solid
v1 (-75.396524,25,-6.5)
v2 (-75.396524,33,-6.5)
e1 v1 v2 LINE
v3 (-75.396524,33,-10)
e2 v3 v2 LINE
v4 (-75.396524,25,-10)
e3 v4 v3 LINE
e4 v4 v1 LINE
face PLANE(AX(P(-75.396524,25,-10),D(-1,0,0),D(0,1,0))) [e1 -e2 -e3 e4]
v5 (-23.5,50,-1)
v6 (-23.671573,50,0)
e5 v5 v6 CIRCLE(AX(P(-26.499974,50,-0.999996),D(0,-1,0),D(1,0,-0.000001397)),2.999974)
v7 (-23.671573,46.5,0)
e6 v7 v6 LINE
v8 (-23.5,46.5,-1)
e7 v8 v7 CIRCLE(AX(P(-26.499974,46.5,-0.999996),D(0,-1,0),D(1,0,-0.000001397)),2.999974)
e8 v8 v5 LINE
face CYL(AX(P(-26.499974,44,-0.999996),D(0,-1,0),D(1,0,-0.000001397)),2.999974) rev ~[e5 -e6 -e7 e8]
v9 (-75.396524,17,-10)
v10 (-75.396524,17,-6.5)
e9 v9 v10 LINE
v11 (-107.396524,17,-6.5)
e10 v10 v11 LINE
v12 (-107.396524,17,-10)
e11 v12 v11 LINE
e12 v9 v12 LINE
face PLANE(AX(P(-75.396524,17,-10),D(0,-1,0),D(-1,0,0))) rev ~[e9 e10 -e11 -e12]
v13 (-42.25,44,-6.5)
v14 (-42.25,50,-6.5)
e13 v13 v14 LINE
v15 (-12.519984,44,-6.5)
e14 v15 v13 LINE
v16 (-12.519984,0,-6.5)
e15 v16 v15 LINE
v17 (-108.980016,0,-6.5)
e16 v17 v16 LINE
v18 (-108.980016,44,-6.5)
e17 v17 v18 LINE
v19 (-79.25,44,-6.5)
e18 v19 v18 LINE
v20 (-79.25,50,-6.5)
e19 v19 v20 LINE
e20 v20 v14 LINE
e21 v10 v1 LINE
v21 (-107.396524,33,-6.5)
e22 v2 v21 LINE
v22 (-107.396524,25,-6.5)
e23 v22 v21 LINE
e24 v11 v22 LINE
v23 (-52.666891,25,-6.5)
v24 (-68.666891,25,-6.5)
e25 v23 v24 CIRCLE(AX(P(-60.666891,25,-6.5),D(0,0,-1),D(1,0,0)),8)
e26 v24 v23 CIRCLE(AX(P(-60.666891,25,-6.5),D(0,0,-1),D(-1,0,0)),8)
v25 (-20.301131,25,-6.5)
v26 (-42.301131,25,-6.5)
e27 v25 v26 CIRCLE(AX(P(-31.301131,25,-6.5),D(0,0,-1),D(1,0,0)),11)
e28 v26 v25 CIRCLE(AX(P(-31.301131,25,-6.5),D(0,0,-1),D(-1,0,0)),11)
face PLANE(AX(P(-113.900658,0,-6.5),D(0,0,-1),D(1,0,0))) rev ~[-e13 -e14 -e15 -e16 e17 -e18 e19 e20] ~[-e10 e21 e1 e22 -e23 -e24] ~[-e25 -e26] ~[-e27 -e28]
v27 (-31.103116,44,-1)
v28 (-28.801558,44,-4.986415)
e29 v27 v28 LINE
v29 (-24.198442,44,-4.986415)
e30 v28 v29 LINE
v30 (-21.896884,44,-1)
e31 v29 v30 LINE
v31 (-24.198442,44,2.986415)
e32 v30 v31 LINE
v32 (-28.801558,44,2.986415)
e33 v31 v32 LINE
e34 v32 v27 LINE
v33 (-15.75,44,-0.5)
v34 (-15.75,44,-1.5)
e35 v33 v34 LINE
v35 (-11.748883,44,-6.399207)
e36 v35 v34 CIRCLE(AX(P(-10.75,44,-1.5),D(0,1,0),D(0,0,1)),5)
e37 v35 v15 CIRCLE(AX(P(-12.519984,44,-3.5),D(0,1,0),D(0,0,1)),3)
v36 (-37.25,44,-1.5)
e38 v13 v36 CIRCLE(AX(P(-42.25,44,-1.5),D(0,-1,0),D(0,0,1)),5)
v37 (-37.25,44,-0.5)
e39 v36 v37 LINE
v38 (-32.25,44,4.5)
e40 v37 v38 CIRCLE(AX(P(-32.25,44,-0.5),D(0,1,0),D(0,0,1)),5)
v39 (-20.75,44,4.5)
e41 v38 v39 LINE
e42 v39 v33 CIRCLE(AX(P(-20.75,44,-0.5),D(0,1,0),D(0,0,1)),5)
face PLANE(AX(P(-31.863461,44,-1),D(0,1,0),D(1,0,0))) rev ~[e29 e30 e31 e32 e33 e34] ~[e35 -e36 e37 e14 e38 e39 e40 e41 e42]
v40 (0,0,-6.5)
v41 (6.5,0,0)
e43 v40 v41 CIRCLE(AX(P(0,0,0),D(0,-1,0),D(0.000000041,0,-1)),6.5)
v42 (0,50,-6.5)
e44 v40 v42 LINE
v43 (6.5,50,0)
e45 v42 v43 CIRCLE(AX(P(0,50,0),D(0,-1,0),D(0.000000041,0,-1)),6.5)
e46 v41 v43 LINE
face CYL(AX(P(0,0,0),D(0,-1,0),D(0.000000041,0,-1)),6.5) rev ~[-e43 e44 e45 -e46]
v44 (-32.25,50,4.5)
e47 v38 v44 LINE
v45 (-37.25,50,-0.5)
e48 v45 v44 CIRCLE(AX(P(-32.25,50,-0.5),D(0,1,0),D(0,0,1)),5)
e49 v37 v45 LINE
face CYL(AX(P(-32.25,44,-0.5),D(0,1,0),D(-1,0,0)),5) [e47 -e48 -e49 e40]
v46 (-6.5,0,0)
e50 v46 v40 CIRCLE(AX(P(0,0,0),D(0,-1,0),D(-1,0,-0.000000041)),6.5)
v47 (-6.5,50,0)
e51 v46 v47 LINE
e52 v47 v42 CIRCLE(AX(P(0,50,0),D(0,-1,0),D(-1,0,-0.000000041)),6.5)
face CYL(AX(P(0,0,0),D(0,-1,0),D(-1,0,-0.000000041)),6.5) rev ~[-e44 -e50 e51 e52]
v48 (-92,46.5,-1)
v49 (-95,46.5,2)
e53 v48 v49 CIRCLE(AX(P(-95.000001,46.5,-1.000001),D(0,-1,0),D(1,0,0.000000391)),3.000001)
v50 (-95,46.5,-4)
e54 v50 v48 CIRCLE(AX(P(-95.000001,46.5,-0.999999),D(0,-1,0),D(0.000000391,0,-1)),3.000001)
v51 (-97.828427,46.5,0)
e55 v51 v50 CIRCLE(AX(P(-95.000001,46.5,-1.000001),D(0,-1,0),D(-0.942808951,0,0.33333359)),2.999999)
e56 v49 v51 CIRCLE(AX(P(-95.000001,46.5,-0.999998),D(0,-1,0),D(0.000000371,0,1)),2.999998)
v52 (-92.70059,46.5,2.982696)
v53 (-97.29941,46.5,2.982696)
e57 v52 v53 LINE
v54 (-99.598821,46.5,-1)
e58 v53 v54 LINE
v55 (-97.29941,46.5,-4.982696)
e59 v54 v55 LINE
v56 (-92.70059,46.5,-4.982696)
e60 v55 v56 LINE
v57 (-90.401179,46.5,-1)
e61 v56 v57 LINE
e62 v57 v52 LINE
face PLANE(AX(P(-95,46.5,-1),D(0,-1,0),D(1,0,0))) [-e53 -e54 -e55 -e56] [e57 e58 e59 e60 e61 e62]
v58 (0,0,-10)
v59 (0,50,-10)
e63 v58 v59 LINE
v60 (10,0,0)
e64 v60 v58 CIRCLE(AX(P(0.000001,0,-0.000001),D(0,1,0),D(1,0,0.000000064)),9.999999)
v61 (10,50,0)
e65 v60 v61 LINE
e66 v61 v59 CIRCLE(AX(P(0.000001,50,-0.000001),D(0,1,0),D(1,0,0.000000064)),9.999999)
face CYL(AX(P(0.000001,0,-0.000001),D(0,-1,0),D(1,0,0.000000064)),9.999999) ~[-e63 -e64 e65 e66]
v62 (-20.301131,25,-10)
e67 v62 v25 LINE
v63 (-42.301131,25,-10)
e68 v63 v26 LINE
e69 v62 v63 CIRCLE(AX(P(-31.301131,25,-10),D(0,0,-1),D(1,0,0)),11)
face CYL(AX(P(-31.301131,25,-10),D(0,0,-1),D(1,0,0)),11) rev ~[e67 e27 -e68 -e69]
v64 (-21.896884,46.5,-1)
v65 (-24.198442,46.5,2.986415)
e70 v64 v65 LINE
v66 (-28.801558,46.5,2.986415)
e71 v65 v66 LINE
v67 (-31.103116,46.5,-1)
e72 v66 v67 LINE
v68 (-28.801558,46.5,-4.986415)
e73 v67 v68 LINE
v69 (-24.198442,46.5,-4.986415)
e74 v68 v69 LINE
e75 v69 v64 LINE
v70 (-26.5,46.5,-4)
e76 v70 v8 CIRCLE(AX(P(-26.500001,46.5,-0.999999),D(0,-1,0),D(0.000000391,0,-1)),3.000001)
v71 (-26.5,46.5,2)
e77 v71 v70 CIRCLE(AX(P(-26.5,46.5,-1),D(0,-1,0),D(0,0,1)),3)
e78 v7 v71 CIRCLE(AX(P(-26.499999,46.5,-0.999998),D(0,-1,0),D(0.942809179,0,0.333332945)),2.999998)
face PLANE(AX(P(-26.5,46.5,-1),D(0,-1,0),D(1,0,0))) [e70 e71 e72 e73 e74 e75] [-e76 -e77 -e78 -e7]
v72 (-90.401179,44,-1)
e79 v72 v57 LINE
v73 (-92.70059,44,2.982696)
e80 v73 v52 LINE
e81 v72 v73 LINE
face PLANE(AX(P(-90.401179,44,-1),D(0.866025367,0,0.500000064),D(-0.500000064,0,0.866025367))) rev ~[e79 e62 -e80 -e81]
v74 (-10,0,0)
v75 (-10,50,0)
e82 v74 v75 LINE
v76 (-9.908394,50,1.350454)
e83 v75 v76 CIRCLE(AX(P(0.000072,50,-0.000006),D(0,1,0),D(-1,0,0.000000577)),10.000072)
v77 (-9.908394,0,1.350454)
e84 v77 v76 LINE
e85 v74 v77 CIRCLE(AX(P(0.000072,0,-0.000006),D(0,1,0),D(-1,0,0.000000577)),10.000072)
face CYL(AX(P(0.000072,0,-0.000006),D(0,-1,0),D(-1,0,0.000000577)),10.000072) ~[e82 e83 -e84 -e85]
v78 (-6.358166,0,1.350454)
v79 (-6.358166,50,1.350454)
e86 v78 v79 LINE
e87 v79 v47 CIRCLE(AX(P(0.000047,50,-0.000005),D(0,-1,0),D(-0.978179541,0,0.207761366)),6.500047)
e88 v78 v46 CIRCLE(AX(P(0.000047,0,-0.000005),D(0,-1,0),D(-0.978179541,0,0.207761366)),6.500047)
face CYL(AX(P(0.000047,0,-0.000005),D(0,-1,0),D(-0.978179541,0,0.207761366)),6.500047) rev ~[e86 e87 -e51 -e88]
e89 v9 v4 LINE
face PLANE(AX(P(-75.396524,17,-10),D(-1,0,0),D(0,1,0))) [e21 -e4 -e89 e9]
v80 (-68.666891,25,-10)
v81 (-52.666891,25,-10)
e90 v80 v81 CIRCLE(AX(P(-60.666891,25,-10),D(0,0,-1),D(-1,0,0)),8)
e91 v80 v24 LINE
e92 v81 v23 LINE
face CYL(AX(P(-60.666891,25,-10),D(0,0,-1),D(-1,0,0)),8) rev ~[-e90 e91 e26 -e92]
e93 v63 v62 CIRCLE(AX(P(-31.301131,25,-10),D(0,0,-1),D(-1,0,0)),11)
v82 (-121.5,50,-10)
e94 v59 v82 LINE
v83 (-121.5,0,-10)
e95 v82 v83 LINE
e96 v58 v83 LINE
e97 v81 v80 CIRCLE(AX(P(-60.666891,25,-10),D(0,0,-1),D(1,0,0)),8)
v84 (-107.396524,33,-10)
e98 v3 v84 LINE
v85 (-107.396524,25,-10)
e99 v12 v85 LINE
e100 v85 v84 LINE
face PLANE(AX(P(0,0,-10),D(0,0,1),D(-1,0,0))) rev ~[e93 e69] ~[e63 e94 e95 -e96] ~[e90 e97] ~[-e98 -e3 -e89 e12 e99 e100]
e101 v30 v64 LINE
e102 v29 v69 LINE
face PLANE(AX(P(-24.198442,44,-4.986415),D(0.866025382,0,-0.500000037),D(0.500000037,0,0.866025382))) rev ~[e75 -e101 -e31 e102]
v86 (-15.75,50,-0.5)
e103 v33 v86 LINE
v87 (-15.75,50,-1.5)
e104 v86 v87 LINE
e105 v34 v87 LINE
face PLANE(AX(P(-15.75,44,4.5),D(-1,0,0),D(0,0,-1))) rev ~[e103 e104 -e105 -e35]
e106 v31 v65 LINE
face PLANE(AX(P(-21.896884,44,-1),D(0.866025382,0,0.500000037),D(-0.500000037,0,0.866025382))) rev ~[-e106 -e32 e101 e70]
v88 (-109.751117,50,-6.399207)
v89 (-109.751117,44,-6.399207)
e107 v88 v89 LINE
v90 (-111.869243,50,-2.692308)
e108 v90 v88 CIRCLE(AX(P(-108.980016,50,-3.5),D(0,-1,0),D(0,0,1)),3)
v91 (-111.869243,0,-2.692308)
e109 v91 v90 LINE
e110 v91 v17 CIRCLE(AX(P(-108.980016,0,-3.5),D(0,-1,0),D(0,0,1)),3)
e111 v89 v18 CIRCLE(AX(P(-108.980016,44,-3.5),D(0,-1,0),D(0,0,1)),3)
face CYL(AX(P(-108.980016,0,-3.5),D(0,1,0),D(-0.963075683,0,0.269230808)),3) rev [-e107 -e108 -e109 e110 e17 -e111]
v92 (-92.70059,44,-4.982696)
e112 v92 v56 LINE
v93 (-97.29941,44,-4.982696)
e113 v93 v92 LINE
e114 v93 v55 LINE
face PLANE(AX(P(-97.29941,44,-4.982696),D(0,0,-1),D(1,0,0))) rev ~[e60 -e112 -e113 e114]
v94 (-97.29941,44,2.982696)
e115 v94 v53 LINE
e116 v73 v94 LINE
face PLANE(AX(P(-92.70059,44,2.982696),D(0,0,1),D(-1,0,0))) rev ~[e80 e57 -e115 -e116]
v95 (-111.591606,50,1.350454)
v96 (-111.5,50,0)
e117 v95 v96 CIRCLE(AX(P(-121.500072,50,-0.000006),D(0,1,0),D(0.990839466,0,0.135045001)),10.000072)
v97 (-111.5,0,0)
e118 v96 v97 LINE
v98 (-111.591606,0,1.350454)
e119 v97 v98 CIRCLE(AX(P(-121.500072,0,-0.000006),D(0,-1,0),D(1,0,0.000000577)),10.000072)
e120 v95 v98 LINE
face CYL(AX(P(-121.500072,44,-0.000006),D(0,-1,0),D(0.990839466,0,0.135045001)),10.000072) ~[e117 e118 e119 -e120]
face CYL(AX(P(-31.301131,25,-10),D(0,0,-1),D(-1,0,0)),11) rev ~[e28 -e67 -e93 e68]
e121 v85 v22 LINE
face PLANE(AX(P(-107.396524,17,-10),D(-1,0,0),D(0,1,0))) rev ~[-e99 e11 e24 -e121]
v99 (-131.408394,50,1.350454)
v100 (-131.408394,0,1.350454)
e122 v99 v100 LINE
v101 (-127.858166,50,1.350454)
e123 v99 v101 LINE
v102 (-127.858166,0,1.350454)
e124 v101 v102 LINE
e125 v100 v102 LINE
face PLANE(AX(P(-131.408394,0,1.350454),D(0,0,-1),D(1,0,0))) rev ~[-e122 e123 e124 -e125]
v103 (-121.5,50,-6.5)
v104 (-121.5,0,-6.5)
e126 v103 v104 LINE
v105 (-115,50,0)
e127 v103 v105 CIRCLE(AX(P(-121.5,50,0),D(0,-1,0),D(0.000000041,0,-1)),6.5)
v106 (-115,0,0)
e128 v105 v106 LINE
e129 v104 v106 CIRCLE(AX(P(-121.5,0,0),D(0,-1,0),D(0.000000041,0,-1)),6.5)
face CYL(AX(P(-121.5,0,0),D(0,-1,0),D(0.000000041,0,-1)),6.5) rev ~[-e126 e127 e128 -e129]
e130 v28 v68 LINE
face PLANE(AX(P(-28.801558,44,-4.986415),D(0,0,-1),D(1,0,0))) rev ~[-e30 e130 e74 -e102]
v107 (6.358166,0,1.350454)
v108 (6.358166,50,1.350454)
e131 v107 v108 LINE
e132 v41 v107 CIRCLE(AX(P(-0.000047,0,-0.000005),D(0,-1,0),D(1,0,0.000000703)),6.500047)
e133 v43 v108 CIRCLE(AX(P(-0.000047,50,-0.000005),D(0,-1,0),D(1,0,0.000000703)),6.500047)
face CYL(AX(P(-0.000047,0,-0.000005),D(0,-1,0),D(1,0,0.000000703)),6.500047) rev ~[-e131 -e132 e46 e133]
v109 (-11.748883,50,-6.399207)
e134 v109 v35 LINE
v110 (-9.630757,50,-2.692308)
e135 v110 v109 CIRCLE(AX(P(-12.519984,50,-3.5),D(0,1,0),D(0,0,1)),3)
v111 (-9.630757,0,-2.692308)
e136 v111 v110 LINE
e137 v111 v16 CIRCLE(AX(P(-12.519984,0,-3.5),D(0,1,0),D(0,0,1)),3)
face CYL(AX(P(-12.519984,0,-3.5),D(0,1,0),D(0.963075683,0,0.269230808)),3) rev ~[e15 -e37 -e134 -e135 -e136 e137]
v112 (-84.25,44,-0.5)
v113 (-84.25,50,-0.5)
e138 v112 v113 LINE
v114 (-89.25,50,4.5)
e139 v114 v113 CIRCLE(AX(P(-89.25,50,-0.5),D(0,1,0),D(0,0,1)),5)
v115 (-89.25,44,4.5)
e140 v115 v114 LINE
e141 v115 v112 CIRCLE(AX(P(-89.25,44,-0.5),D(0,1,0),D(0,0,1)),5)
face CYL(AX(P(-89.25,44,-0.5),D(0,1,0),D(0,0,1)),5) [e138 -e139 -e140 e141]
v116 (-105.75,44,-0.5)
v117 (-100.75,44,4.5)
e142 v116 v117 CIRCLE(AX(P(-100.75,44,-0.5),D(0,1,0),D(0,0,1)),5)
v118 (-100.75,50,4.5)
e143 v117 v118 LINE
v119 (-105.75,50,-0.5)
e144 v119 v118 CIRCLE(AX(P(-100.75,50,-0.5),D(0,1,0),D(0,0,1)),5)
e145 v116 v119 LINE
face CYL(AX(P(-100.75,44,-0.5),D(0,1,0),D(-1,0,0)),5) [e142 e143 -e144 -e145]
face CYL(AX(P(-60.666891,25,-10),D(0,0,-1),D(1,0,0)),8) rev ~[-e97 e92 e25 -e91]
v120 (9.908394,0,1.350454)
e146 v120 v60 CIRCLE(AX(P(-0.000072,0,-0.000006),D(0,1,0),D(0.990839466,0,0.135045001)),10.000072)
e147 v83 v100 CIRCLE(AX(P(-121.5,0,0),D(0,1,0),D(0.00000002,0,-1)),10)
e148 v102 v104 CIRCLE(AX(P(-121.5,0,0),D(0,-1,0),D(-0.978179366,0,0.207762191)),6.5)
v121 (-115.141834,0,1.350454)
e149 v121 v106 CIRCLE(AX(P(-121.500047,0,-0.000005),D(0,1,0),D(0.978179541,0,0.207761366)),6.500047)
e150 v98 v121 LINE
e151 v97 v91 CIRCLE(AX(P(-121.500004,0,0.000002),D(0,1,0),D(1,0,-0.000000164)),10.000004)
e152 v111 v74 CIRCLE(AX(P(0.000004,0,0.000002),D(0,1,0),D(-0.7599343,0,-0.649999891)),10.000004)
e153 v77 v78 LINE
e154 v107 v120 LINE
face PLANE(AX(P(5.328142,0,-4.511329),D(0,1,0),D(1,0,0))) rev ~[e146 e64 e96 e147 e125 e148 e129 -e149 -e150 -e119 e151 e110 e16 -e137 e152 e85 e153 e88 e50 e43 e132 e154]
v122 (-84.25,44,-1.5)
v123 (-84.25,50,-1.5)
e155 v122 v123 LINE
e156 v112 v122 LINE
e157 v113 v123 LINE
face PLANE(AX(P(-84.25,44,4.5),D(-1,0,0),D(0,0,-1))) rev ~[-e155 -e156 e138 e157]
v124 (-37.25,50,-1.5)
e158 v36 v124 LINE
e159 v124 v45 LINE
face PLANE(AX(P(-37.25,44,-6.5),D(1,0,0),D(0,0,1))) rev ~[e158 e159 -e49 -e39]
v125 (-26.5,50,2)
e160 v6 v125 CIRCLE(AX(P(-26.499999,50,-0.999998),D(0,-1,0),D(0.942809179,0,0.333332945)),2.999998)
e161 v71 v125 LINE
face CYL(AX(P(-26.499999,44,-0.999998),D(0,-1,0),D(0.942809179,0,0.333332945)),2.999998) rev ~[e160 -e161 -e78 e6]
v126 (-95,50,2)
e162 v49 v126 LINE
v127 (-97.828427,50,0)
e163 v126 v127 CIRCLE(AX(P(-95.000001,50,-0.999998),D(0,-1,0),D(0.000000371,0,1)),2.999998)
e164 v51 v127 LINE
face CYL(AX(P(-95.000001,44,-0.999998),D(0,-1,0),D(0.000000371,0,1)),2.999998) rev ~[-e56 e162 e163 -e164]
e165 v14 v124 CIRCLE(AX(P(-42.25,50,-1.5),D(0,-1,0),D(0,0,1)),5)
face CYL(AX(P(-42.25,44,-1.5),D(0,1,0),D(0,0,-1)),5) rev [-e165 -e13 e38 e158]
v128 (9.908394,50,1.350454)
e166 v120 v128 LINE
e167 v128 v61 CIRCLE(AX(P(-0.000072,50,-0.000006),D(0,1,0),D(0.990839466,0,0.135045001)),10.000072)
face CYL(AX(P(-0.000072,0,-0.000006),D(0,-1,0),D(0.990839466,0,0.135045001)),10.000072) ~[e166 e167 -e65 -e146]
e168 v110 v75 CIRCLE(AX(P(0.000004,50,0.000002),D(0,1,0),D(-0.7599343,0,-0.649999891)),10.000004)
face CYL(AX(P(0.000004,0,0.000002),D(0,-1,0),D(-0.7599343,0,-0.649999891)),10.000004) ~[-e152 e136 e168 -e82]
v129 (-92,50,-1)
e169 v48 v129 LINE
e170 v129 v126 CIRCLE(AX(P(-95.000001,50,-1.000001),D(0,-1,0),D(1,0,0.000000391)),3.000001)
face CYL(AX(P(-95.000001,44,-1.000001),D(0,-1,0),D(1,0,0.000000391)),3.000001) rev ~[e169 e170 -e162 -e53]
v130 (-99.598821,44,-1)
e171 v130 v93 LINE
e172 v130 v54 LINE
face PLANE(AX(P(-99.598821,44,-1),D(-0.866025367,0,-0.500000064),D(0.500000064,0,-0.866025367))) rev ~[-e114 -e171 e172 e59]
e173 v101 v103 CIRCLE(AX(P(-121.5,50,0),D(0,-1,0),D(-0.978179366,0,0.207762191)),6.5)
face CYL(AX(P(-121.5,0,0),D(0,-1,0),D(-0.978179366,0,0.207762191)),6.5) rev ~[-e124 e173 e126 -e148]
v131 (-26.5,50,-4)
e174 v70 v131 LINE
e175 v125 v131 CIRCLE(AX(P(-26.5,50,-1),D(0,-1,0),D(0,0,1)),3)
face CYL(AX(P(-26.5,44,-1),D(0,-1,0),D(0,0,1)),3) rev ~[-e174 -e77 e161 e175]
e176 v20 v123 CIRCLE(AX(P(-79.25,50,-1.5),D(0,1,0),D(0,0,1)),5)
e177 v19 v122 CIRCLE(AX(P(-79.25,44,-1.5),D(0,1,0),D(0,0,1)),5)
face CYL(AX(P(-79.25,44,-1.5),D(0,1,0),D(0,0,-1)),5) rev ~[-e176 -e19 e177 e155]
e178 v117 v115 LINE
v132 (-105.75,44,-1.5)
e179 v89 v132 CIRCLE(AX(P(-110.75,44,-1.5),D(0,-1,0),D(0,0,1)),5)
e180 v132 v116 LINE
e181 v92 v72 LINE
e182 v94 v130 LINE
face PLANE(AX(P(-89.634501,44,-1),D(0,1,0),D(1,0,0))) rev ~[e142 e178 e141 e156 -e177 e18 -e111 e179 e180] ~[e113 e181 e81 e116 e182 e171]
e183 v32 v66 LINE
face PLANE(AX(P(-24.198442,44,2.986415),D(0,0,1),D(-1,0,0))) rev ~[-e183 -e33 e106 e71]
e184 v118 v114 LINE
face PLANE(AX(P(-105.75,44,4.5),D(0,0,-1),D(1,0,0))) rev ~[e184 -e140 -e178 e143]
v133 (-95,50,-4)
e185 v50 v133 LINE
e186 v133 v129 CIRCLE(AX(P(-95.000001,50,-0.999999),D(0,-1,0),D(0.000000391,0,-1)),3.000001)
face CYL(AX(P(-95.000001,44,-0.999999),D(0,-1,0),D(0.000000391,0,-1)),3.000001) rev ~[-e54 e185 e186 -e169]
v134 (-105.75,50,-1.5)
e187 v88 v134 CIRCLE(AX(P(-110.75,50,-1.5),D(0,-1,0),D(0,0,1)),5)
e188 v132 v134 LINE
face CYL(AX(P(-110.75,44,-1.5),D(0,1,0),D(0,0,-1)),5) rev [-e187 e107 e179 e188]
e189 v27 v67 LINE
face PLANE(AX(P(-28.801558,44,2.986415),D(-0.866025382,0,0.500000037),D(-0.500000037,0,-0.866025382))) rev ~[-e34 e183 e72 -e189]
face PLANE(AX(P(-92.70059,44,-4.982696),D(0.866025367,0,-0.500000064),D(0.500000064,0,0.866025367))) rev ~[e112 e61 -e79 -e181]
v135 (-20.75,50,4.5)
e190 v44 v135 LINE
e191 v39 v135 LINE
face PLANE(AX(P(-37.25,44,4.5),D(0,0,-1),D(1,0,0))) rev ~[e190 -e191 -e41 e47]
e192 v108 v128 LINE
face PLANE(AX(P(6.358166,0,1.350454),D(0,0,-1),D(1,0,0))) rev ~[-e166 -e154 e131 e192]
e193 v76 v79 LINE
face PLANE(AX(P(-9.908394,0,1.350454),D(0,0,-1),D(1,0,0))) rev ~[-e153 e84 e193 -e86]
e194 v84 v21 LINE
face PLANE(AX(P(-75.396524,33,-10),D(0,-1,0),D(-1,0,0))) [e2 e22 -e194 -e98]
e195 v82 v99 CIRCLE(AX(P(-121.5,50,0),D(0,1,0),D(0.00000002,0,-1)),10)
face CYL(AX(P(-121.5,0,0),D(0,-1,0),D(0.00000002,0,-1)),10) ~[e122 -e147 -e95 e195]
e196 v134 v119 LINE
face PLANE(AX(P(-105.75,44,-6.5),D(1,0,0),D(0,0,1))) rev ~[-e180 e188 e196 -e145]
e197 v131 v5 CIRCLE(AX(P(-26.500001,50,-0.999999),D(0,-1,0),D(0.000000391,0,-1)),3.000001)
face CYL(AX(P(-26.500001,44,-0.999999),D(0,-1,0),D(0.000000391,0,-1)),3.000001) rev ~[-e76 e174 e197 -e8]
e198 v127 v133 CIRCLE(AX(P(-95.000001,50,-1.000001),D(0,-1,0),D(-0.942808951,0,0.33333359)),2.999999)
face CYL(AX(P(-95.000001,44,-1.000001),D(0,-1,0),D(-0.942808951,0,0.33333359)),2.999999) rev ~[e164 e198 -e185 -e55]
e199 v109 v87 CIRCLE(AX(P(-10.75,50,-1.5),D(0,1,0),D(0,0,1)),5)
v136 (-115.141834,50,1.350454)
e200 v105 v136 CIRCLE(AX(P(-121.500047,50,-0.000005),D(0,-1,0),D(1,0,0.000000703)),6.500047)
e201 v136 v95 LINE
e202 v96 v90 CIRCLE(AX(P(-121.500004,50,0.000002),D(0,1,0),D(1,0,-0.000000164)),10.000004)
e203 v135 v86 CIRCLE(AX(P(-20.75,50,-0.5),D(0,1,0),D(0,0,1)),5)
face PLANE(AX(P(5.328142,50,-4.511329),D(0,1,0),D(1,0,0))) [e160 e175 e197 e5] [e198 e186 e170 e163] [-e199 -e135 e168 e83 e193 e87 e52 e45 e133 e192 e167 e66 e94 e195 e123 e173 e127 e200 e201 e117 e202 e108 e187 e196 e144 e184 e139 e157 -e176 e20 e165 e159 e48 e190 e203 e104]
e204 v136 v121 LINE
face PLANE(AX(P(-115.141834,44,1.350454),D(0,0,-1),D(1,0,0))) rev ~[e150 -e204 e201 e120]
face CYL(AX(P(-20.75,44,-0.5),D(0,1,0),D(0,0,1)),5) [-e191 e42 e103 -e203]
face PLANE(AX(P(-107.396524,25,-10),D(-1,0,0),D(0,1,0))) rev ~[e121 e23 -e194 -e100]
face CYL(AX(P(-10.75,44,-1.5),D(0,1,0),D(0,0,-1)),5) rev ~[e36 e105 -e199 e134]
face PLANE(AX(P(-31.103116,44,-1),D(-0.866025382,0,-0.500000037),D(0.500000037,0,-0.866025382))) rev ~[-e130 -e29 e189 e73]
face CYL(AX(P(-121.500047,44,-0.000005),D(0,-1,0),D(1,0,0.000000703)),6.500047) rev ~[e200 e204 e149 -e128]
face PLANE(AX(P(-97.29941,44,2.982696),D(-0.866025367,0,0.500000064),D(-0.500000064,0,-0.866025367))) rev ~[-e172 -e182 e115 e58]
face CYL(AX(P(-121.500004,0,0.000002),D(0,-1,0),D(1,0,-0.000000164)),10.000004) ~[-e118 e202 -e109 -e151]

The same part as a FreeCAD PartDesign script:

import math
import FreeCAD as App
import Part
import Sketcher
Q = App.Units.Quantity


def edges_at(feature, points):
    """Names of the edges that pass closest to the given points."""
    edges = feature.Shape.Edges
    near = lambda p: min(range(len(edges)), key=lambda i: edges[i].distToShape(Part.Vertex(*p))[0])
    return sorted({f"Edge{near(p) + 1}" for p in points})

doc = App.newDocument("Part")
body = doc.addObject("PartDesign::Body", "Body")

# Sketch on XZ plane
sketch1 = doc.addObject("Sketcher::SketchObject", "Sketch")
body.addObject(sketch1)
sketch1.AttachmentSupport = (doc.XZ_Plane, [""])
sketch1.MapMode = "FlatFace"
sketch1.addGeometry(Part.ArcOfCircle(Part.Circle(App.Vector(0, 0, 0), App.Vector(0, 0, 1), 6.5), math.radians(-89.999998), math.radians(-0.000002)), False)
sketch1.addGeometry(Part.ArcOfCircle(Part.Circle(App.Vector(-0.000047, -0.000005, 0), App.Vector(0, 0, 1), 6.500047), math.radians(0.00004), math.radians(11.991195)), False)
sketch1.addGeometry(Part.LineSegment(App.Vector(6.358166, 1.350454, 0), App.Vector(9.908394, 1.350454, 0)), False)
sketch1.addGeometry(Part.ArcOfCircle(Part.Circle(App.Vector(-0.000072, -0.000006, 0), App.Vector(0, 0, 1), 10.000072), math.radians(0.000033), math.radians(7.761222)), False)
sketch1.addGeometry(Part.ArcOfCircle(Part.Circle(App.Vector(0.000001, -0.000001, 0), App.Vector(0, 0, 1), 9.999999), math.radians(-90.000004), math.radians(0.000004)), False)
sketch1.addGeometry(Part.LineSegment(App.Vector(0, -10, 0), App.Vector(-121.5, -10, 0)), False)
sketch1.addGeometry(Part.ArcOfCircle(Part.Circle(App.Vector(-121.5, 0, 0), App.Vector(0, 0, 1), 10), math.radians(172.238753), math.radians(270.000001)), False)
sketch1.addGeometry(Part.LineSegment(App.Vector(-131.408394, 1.350454, 0), App.Vector(-127.858166, 1.350454, 0)), False)
sketch1.addGeometry(Part.ArcOfCircle(Part.Circle(App.Vector(-121.5, 0, 0), App.Vector(0, 0, 1), 6.5), math.radians(168.008757), math.radians(270.000003)), False)
sketch1.addGeometry(Part.ArcOfCircle(Part.Circle(App.Vector(-121.5, 0, 0), App.Vector(0, 0, 1), 6.5), math.radians(-89.999998), math.radians(-0.000002)), False)
sketch1.addGeometry(Part.LineSegment(App.Vector(-115, 0, 0), App.Vector(-111.5, 0, 0)), False)
sketch1.addGeometry(Part.ArcOfCircle(Part.Circle(App.Vector(-121.500004, 0.000002, 0), App.Vector(0, 0, 1), 10.000004), math.radians(-40.541594), math.radians(-0.000009)), False)
sketch1.addGeometry(Part.LineSegment(App.Vector(-113.900658, -6.5, 0), App.Vector(-7.599342, -6.5, 0)), False)
sketch1.addGeometry(Part.ArcOfCircle(Part.Circle(App.Vector(0.000004, 0.000002, 0), App.Vector(0, 0, 1), 10.000004), math.radians(-179.999991), math.radians(-139.458406)), False)
sketch1.addGeometry(Part.ArcOfCircle(Part.Circle(App.Vector(0.000072, -0.000006, 0), App.Vector(0, 0, 1), 10.000072), math.radians(172.238778), math.radians(179.999967)), False)
sketch1.addGeometry(Part.LineSegment(App.Vector(-9.908394, 1.350454, 0), App.Vector(-6.358166, 1.350454, 0)), False)
sketch1.addGeometry(Part.ArcOfCircle(Part.Circle(App.Vector(0.000047, -0.000005, 0), App.Vector(0, 0, 1), 6.500047), math.radians(168.008805), math.radians(179.99996)), False)
sketch1.addGeometry(Part.ArcOfCircle(Part.Circle(App.Vector(0, 0, 0), App.Vector(0, 0, 1), 6.5), math.radians(-179.999998), math.radians(-90.000002)), False)
sketch1.addConstraint(Sketcher.Constraint("Coincident", 0, 2, 1, 1))
sketch1.addConstraint(Sketcher.Constraint("Coincident", 1, 2, 2, 1))
sketch1.addConstraint(Sketcher.Constraint("Coincident", 2, 2, 3, 2))
sketch1.addConstraint(Sketcher.Constraint("Coincident", 3, 1, 4, 2))
sketch1.addConstraint(Sketcher.Constraint("Coincident", 4, 1, 5, 1))
sketch1.addConstraint(Sketcher.Constraint("Coincident", 5, 2, 6, 2))
sketch1.addConstraint(Sketcher.Constraint("Coincident", 6, 1, 7, 1))
sketch1.addConstraint(Sketcher.Constraint("Coincident", 7, 2, 8, 1))
sketch1.addConstraint(Sketcher.Constraint("Coincident", 8, 2, 9, 1))
sketch1.addConstraint(Sketcher.Constraint("Coincident", 9, 2, 10, 1))
sketch1.addConstraint(Sketcher.Constraint("Coincident", 10, 2, 11, 2))
sketch1.addConstraint(Sketcher.Constraint("Coincident", 11, 1, 12, 1))
sketch1.addConstraint(Sketcher.Constraint("Coincident", 12, 2, 13, 2))
sketch1.addConstraint(Sketcher.Constraint("Coincident", 13, 1, 14, 2))
sketch1.addConstraint(Sketcher.Constraint("Coincident", 14, 1, 15, 1))
sketch1.addConstraint(Sketcher.Constraint("Coincident", 15, 2, 16, 1))
sketch1.addConstraint(Sketcher.Constraint("Coincident", 16, 2, 17, 1))
sketch1.addConstraint(Sketcher.Constraint("Coincident", 17, 2, 0, 1))
sketch1.addConstraint(Sketcher.Constraint("Horizontal", 2))
sketch1.addConstraint(Sketcher.Constraint("Horizontal", 5))
sketch1.addConstraint(Sketcher.Constraint("Horizontal", 7))
sketch1.addConstraint(Sketcher.Constraint("Horizontal", 10))
sketch1.addConstraint(Sketcher.Constraint("Horizontal", 12))
sketch1.addConstraint(Sketcher.Constraint("Horizontal", 15))
sketch1.addConstraint(Sketcher.Constraint("Coincident", 0, 3, -1, 1))
sketch1.addConstraint(Sketcher.Constraint("Coincident", 4, 3, -1, 1))
sketch1.addConstraint(Sketcher.Constraint("Coincident", 13, 3, -1, 1))
sketch1.addConstraint(Sketcher.Constraint("Coincident", 17, 3, -1, 1))
sketch1.addConstraint(Sketcher.Constraint("Coincident", 8, 3, 6, 3))
sketch1.addConstraint(Sketcher.Constraint("Coincident", 9, 3, 6, 3))
sketch1.addConstraint(Sketcher.Constraint("Coincident", 11, 3, 6, 3))
sketch1.addConstraint(Sketcher.Constraint("PointOnObject", 6, 3, -1))
sketch1.addConstraint(Sketcher.Constraint("PointOnObject", 0, 2, -1))
sketch1.addConstraint(Sketcher.Constraint("PointOnObject", 3, 1, -1))
sketch1.addConstraint(Sketcher.Constraint("PointOnObject", 4, 1, -2))
sketch1.addConstraint(Sketcher.Constraint("PointOnObject", 9, 2, -1))
sketch1.addConstraint(Sketcher.Constraint("PointOnObject", 13, 1, -1))
sketch1.addConstraint(Sketcher.Constraint("PointOnObject", 16, 2, -1))
sketch1.addConstraint(Sketcher.Constraint("PointOnObject", 17, 2, -2))
sketch1.addConstraint(Sketcher.Constraint("Radius", 4, 9.999999))
sketch1.addConstraint(Sketcher.Constraint("Radius", 0, 6.5))
sketch1.addConstraint(Sketcher.Constraint("Radius", 8, 6.5))
sketch1.addConstraint(Sketcher.Constraint("DistanceX", 5, 2, 5, 1, 121.5))
sketch1.addConstraint(Sketcher.Constraint("DistanceX", 10, 1, 10, 2, 3.5))
sketch1.addConstraint(Sketcher.Constraint("DistanceX", 9, 2, -1, 1, 115.0))
sketch1.addConstraint(Sketcher.Constraint("DistanceX", 13, 1, -1, 1, 10.0))
sketch1.addConstraint(Sketcher.Constraint("DistanceX", 8, 2, -1, 1, 121.5))
sketch1.addConstraint(Sketcher.Constraint("DistanceY", 11, 1, -1, 1, 6.5))
sketch1.addConstraint(Sketcher.Constraint("Radius", 1, 6.500047))
sketch1.addConstraint(Sketcher.Constraint("Radius", 3, 10.000072))
sketch1.addConstraint(Sketcher.Constraint("Radius", 14, 10.000072))
sketch1.addConstraint(Sketcher.Constraint("Radius", 16, 6.500047))
sketch1.addConstraint(Sketcher.Constraint("DistanceX", 2, 1, 2, 2, 3.550228))
sketch1.addConstraint(Sketcher.Constraint("DistanceX", 7, 1, 7, 2, 3.550228))
sketch1.addConstraint(Sketcher.Constraint("DistanceX", 15, 1, 15, 2, 3.550228))
sketch1.addConstraint(Sketcher.Constraint("DistanceY", 14, 3, 1, 2, 1.35046))
sketch1.addConstraint(Sketcher.Constraint("DistanceX", 16, 3, 1, 2, 6.358119))
sketch1.addConstraint(Sketcher.Constraint("DistanceY", 16, 3, 1, 2, 1.350459))
sketch1.addConstraint(Sketcher.Constraint("DistanceY", -1, 1, 1, 2, 1.350454))
pad1 = doc.addObject("PartDesign::Pad", "Pad")
body.addObject(pad1)
pad1.Profile = sketch1
pad1.Length = 50
pad1.Reversed = True

# Sketch on XZ plane
sketch2 = doc.addObject("Sketcher::SketchObject", "Sketch001")
body.addObject(sketch2)
sketch2.AttachmentSupport = (doc.XZ_Plane, [""])
sketch2.MapMode = "FlatFace"
sketch2.AttachmentOffset = App.Placement(App.Vector(0, 0, -44), App.Rotation())
sketch2.addGeometry(Part.LineSegment(App.Vector(-84.25, 4.5, 0), App.Vector(-84.25, -6.5, 0)), False)
sketch2.addGeometry(Part.LineSegment(App.Vector(-84.25, -6.5, 0), App.Vector(-105.75, -6.5, 0)), False)
sketch2.addGeometry(Part.LineSegment(App.Vector(-105.75, -6.5, 0), App.Vector(-105.75, 4.5, 0)), False)
sketch2.addGeometry(Part.LineSegment(App.Vector(-105.75, 4.5, 0), App.Vector(-84.25, 4.5, 0)), False)
sketch2.addGeometry(Part.ArcOfCircle(Part.Circle(App.Vector(-95.000001, -0.999999, 0), App.Vector(0, 0, 1), 3.000001), math.radians(-89.999978), math.radians(-0.000022)), False)
sketch2.addGeometry(Part.ArcOfCircle(Part.Circle(App.Vector(-95.000001, -1.000001, 0), App.Vector(0, 0, 1), 3.000001), math.radians(0.000022), math.radians(89.999978)), False)
sketch2.addGeometry(Part.ArcOfCircle(Part.Circle(App.Vector(-95.000001, -0.999998, 0), App.Vector(0, 0, 1), 2.999998), math.radians(89.999979), math.radians(160.528803)), False)
sketch2.addGeometry(Part.ArcOfCircle(Part.Circle(App.Vector(-95.000001, -1.000001, 0), App.Vector(0, 0, 1), 2.999999), math.radians(160.528764), math.radians(270.000013)), False)
sketch2.addGeometry(Part.LineSegment(App.Vector(-37.25, -6.5, 0), App.Vector(-37.25, 4.5, 0)), False)
sketch2.addGeometry(Part.LineSegment(App.Vector(-37.25, 4.5, 0), App.Vector(-15.75, 4.5, 0)), False)
sketch2.addGeometry(Part.LineSegment(App.Vector(-15.75, 4.5, 0), App.Vector(-15.75, -6.5, 0)), False)
sketch2.addGeometry(Part.LineSegment(App.Vector(-15.75, -6.5, 0), App.Vector(-37.25, -6.5, 0)), False)
sketch2.addGeometry(Part.ArcOfCircle(Part.Circle(App.Vector(-26.5, -1, 0), App.Vector(0, 0, 1), 3), math.radians(90), math.radians(270)), False)
sketch2.addGeometry(Part.ArcOfCircle(Part.Circle(App.Vector(-26.500001, -0.999999, 0), App.Vector(0, 0, 1), 3.000001), math.radians(-89.999978), math.radians(-0.000022)), False)
sketch2.addGeometry(Part.ArcOfCircle(Part.Circle(App.Vector(-26.499974, -0.999996, 0), App.Vector(0, 0, 1), 2.999974), math.radians(-0.00008), math.radians(19.471315)), False)
sketch2.addGeometry(Part.ArcOfCircle(Part.Circle(App.Vector(-26.499999, -0.999998, 0), App.Vector(0, 0, 1), 2.999998), math.radians(19.471197), math.radians(90.000021)), False)
sketch2.addGeometry(Part.ArcOfCircle(Part.Circle(App.Vector(-121.500004, 0.000002, 0), App.Vector(0, 0, 1), 10.000004), math.radians(-40.541594), math.radians(-0.000009)), False)
sketch2.addGeometry(Part.ArcOfCircle(Part.Circle(App.Vector(-121.5, 0, 0), App.Vector(0, 0, 1), 10), math.radians(172.238755), math.radians(319.458397)), False)
sketch2.addGeometry(Part.LineSegment(App.Vector(-131.408394, 1.350454, 0), App.Vector(-127.858166, 1.350454, 0)), False)
sketch2.addGeometry(Part.ArcOfCircle(Part.Circle(App.Vector(-121.5, 0, 0), App.Vector(0, 0, 1), 6.5), math.radians(168.008761), math.radians(359.999998)), False)
sketch2.addGeometry(Part.ArcOfCircle(Part.Circle(App.Vector(-121.500047, -0.000005, 0), App.Vector(0, 0, 1), 6.500047), math.radians(0.00004), math.radians(11.991195)), False)
sketch2.addGeometry(Part.LineSegment(App.Vector(-115.141834, 1.350454, 0), App.Vector(-111.591606, 1.350454, 0)), False)
sketch2.addGeometry(Part.ArcOfCircle(Part.Circle(App.Vector(-121.500072, -0.000006, 0), App.Vector(0, 0, 1), 10.000072), math.radians(0.000033), math.radians(7.761222)), False)
sketch2.addConstraint(Sketcher.Constraint("Coincident", 0, 2, 1, 1))
sketch2.addConstraint(Sketcher.Constraint("Coincident", 1, 2, 2, 1))
sketch2.addConstraint(Sketcher.Constraint("Coincident", 2, 2, 3, 1))
sketch2.addConstraint(Sketcher.Constraint("Coincident", 3, 2, 0, 1))
sketch2.addConstraint(Sketcher.Constraint("Coincident", 4, 2, 5, 1))
sketch2.addConstraint(Sketcher.Constraint("Coincident", 5, 2, 6, 1))
sketch2.addConstraint(Sketcher.Constraint("Coincident", 6, 2, 7, 1))
sketch2.addConstraint(Sketcher.Constraint("Coincident", 7, 2, 4, 1))
sketch2.addConstraint(Sketcher.Constraint("Coincident", 8, 2, 9, 1))
sketch2.addConstraint(Sketcher.Constraint("Coincident", 9, 2, 10, 1))
sketch2.addConstraint(Sketcher.Constraint("Coincident", 10, 2, 11, 1))
sketch2.addConstraint(Sketcher.Constraint("Coincident", 11, 2, 8, 1))
sketch2.addConstraint(Sketcher.Constraint("Coincident", 12, 2, 13, 1))
sketch2.addConstraint(Sketcher.Constraint("Coincident", 13, 2, 14, 1))
sketch2.addConstraint(Sketcher.Constraint("Coincident", 14, 2, 15, 1))
sketch2.addConstraint(Sketcher.Constraint("Coincident", 15, 2, 12, 1))
sketch2.addConstraint(Sketcher.Constraint("Coincident", 16, 1, 17, 2))
sketch2.addConstraint(Sketcher.Constraint("Coincident", 17, 1, 18, 1))
sketch2.addConstraint(Sketcher.Constraint("Coincident", 18, 2, 19, 1))
sketch2.addConstraint(Sketcher.Constraint("Coincident", 19, 2, 20, 1))
sketch2.addConstraint(Sketcher.Constraint("Coincident", 20, 2, 21, 1))
sketch2.addConstraint(Sketcher.Constraint("Coincident", 21, 2, 22, 2))
sketch2.addConstraint(Sketcher.Constraint("Coincident", 22, 1, 16, 2))
sketch2.addConstraint(Sketcher.Constraint("Vertical", 0))
sketch2.addConstraint(Sketcher.Constraint("Horizontal", 1))
sketch2.addConstraint(Sketcher.Constraint("Vertical", 2))
sketch2.addConstraint(Sketcher.Constraint("Horizontal", 3))
sketch2.addConstraint(Sketcher.Constraint("Vertical", 8))
sketch2.addConstraint(Sketcher.Constraint("Horizontal", 9))
sketch2.addConstraint(Sketcher.Constraint("Vertical", 10))
sketch2.addConstraint(Sketcher.Constraint("Horizontal", 11))
sketch2.addConstraint(Sketcher.Constraint("Horizontal", 18))
sketch2.addConstraint(Sketcher.Constraint("Horizontal", 21))
sketch2.addConstraint(Sketcher.Constraint("Coincident", 5, 3, 4, 3))
sketch2.addConstraint(Sketcher.Constraint("Coincident", 6, 3, 4, 3))
sketch2.addConstraint(Sketcher.Constraint("Coincident", 13, 3, 12, 3))
sketch2.addConstraint(Sketcher.Constraint("Coincident", 15, 3, 12, 3))
sketch2.addConstraint(Sketcher.Constraint("Coincident", 17, 3, 16, 3))
sketch2.addConstraint(Sketcher.Constraint("Coincident", 19, 3, 16, 3))
sketch2.addConstraint(Sketcher.Constraint("PointOnObject", 16, 3, -1))
sketch2.addConstraint(Sketcher.Constraint("PointOnObject", 6, 2, -1))
sketch2.addConstraint(Sketcher.Constraint("PointOnObject", 14, 2, -1))
sketch2.addConstraint(Sketcher.Constraint("PointOnObject", 19, 2, -1))
sketch2.addConstraint(Sketcher.Constraint("PointOnObject", 22, 1, -1))
sketch2.addConstraint(Sketcher.Constraint("Radius", 4, 3.000001))
sketch2.addConstraint(Sketcher.Constraint("Radius", 7, 2.999999))
sketch2.addConstraint(Sketcher.Constraint("Radius", 12, 3.0))
sketch2.addConstraint(Sketcher.Constraint("Radius", 17, 10.0))
sketch2.addConstraint(Sketcher.Constraint("Radius", 19, 6.5))
sketch2.addConstraint(Sketcher.Constraint("DistanceY", 0, 2, 0, 1, 11.0))
sketch2.addConstraint(Sketcher.Constraint("DistanceY", 8, 1, 8, 2, 11.0))
sketch2.addConstraint(Sketcher.Constraint("DistanceX", 1, 2, 1, 1, 21.5))
sketch2.addConstraint(Sketcher.Constraint("DistanceX", 9, 1, 9, 2, 21.5))
sketch2.addConstraint(Sketcher.Constraint("DistanceX", 4, 3, -1, 1, 95.000001))
sketch2.addConstraint(Sketcher.Constraint("DistanceY", 4, 3, -1, 1, 0.999999))
sketch2.addConstraint(Sketcher.Constraint("DistanceY", 12, 3, -1, 1, 1.0))
sketch2.addConstraint(Sketcher.Constraint("DistanceY", 4, 2, -1, 1, 1.0))
sketch2.addConstraint(Sketcher.Constraint("DistanceX", 5, 2, -1, 1, 95.0))
sketch2.addConstraint(Sketcher.Constraint("DistanceX", 7, 2, -1, 1, 95.0))
sketch2.addConstraint(Sketcher.Constraint("DistanceY", 13, 2, -1, 1, 1.0))
sketch2.addConstraint(Sketcher.Constraint("DistanceX", 19, 2, -1, 1, 115.0))
sketch2.addConstraint(Sketcher.Constraint("DistanceX", 3, 2, 8, 2, 47.0))
sketch2.addConstraint(Sketcher.Constraint("DistanceX", 12, 2, 13, 2, 3.0))
sketch2.addConstraint(Sketcher.Constraint("DistanceX", 12, 3, -1, 1, 26.5))
sketch2.addConstraint(Sketcher.Constraint("DistanceY", 0, 2, -1, 1, 6.5))
sketch2.addConstraint(Sketcher.Constraint("DistanceY", -1, 1, 8, 2, 4.5))
sketch2.addConstraint(Sketcher.Constraint("DistanceX", 15, 2, -1, 1, 26.5))
sketch2.addConstraint(Sketcher.Constraint("DistanceY", 16, 1, -1, 1, 6.5))
sketch2.addConstraint(Sketcher.Constraint("DistanceX", 0, 2, -1, 1, 84.25))
sketch2.addConstraint(Sketcher.Constraint("Radius", 14, 2.999974))
sketch2.addConstraint(Sketcher.Constraint("Radius", 20, 6.500047))
sketch2.addConstraint(Sketcher.Constraint("Radius", 22, 10.000072))
sketch2.addConstraint(Sketcher.Constraint("DistanceX", 21, 1, 21, 2, 3.550228))
sketch2.addConstraint(Sketcher.Constraint("DistanceX", 18, 1, 18, 2, 3.550228))
sketch2.addConstraint(Sketcher.Constraint("DistanceY", 22, 3, 17, 1, 1.35046))
sketch2.addConstraint(Sketcher.Constraint("DistanceY", 20, 3, 17, 1, 1.350459))
pad2 = doc.addObject("PartDesign::Pad", "Pad001")
body.addObject(pad2)
pad2.Profile = sketch2
pad2.Length = 6
pad2.Reversed = True

# Sketch on XZ plane
sketch3 = doc.addObject("Sketcher::SketchObject", "Sketch002")
body.addObject(sketch3)
sketch3.AttachmentSupport = (doc.XZ_Plane, [""])
sketch3.MapMode = "FlatFace"
sketch3.addGeometry(Part.LineSegment(App.Vector(-111.591606, 1.350454, 0), App.Vector(-115.141834, 1.350454, 0)), False)
sketch3.addGeometry(Part.ArcOfCircle(Part.Circle(App.Vector(-121.500047, -0.000005, 0), App.Vector(0, 0, 1), 6.500047), math.radians(0.00004), math.radians(11.991195)), False)
sketch3.addGeometry(Part.LineSegment(App.Vector(-115, 0, 0), App.Vector(-111.5, 0, 0)), False)
sketch3.addGeometry(Part.ArcOfCircle(Part.Circle(App.Vector(-121.500072, -0.000006, 0), App.Vector(0, 0, 1), 10.000072), math.radians(0.000033), math.radians(7.761222)), False)
sketch3.addConstraint(Sketcher.Constraint("Coincident", 0, 2, 1, 2))
sketch3.addConstraint(Sketcher.Constraint("Coincident", 1, 1, 2, 1))
sketch3.addConstraint(Sketcher.Constraint("Coincident", 2, 2, 3, 1))
sketch3.addConstraint(Sketcher.Constraint("Coincident", 3, 2, 0, 1))
sketch3.addConstraint(Sketcher.Constraint("Horizontal", 0))
sketch3.addConstraint(Sketcher.Constraint("Horizontal", 2))
sketch3.addConstraint(Sketcher.Constraint("PointOnObject", 1, 1, -1))
sketch3.addConstraint(Sketcher.Constraint("Horizontal", 1, 3, 3, 3))
sketch3.addConstraint(Sketcher.Constraint("DistanceX", 2, 1, 2, 2, 3.5))
sketch3.addConstraint(Sketcher.Constraint("DistanceX", 1, 1, -1, 1, 115.0))
sketch3.addConstraint(Sketcher.Constraint("Radius", 1, 6.500047))
sketch3.addConstraint(Sketcher.Constraint("Radius", 3, 10.000072))
sketch3.addConstraint(Sketcher.Constraint("DistanceX", 0, 2, 0, 1, 3.550228))
sketch3.addConstraint(Sketcher.Constraint("DistanceY", -1, 1, 0, 2, 1.350454))
pad3 = doc.addObject("PartDesign::Pad", "Pad002")
body.addObject(pad3)
pad3.Profile = sketch3
pad3.Length = 44
pad3.Reversed = True
doc.recompute()

fillet = doc.addObject("PartDesign::Fillet", "Fillet")
body.addObject(fillet)
fillet.Base = (pad3, edges_at(pad3, [
    (-105.75, 47, 4.5),
    (-105.75, 47, -6.5),
    (-84.25, 47, -6.5),
    (-84.25, 47, 4.5),
    (-15.75, 47, -6.5),
    (-15.75, 47, 4.5),
    (-37.25, 47, 4.5),
    (-37.25, 47, -6.5),
]))
fillet.Radius = 5
doc.recompute()

fillet2 = doc.addObject("PartDesign::Fillet", "Fillet001")
body.addObject(fillet2)
fillet2.Base = (fillet, edges_at(fillet, [(-7.599, 25, -6.5), (-113.901, 25, -6.5)]))
fillet2.Radius = 3

# Sketch on XZ plane
sketch4 = doc.addObject("Sketcher::SketchObject", "Sketch003")
body.addObject(sketch4)
sketch4.AttachmentSupport = (doc.XZ_Plane, [""])
sketch4.MapMode = "FlatFace"
sketch4.AttachmentOffset = App.Placement(App.Vector(0, 0, -44), App.Rotation())
sketch4.addGeometry(Part.LineSegment(App.Vector(-21.896884, -1, 0), App.Vector(-24.198442, 2.986415, 0)), False)
sketch4.addGeometry(Part.LineSegment(App.Vector(-24.198442, 2.986415, 0), App.Vector(-28.801558, 2.986415, 0)), False)
sketch4.addGeometry(Part.LineSegment(App.Vector(-28.801558, 2.986415, 0), App.Vector(-31.103116, -1, 0)), False)
sketch4.addGeometry(Part.LineSegment(App.Vector(-31.103116, -1, 0), App.Vector(-28.801558, -4.986415, 0)), False)
sketch4.addGeometry(Part.LineSegment(App.Vector(-28.801558, -4.986415, 0), App.Vector(-24.198442, -4.986415, 0)), False)
sketch4.addGeometry(Part.LineSegment(App.Vector(-24.198442, -4.986415, 0), App.Vector(-21.896884, -1, 0)), False)
sketch4.addGeometry(Part.LineSegment(App.Vector(-90.401179, -1, 0), App.Vector(-92.70059, 2.982696, 0)), False)
sketch4.addGeometry(Part.LineSegment(App.Vector(-92.70059, 2.982696, 0), App.Vector(-97.29941, 2.982696, 0)), False)
sketch4.addGeometry(Part.LineSegment(App.Vector(-97.29941, 2.982696, 0), App.Vector(-99.598821, -1, 0)), False)
sketch4.addGeometry(Part.LineSegment(App.Vector(-99.598821, -1, 0), App.Vector(-97.29941, -4.982696, 0)), False)
sketch4.addGeometry(Part.LineSegment(App.Vector(-97.29941, -4.982696, 0), App.Vector(-92.70059, -4.982696, 0)), False)
sketch4.addGeometry(Part.LineSegment(App.Vector(-92.70059, -4.982696, 0), App.Vector(-90.401179, -1, 0)), False)
sketch4.addConstraint(Sketcher.Constraint("Coincident", 0, 2, 1, 1))
sketch4.addConstraint(Sketcher.Constraint("Coincident", 1, 2, 2, 1))
sketch4.addConstraint(Sketcher.Constraint("Coincident", 2, 2, 3, 1))
sketch4.addConstraint(Sketcher.Constraint("Coincident", 3, 2, 4, 1))
sketch4.addConstraint(Sketcher.Constraint("Coincident", 4, 2, 5, 1))
sketch4.addConstraint(Sketcher.Constraint("Coincident", 5, 2, 0, 1))
sketch4.addConstraint(Sketcher.Constraint("Coincident", 6, 2, 7, 1))
sketch4.addConstraint(Sketcher.Constraint("Coincident", 7, 2, 8, 1))
sketch4.addConstraint(Sketcher.Constraint("Coincident", 8, 2, 9, 1))
sketch4.addConstraint(Sketcher.Constraint("Coincident", 9, 2, 10, 1))
sketch4.addConstraint(Sketcher.Constraint("Coincident", 10, 2, 11, 1))
sketch4.addConstraint(Sketcher.Constraint("Coincident", 11, 2, 6, 1))
sketch4.addConstraint(Sketcher.Constraint("Horizontal", 1))
sketch4.addConstraint(Sketcher.Constraint("Horizontal", 4))
sketch4.addConstraint(Sketcher.Constraint("Horizontal", 7))
sketch4.addConstraint(Sketcher.Constraint("Horizontal", 10))
sketch4.addConstraint(Sketcher.Constraint("Parallel", 0, 3))
sketch4.addConstraint(Sketcher.Constraint("Parallel", 2, 5))
sketch4.addConstraint(Sketcher.Constraint("Parallel", 3, 6))
sketch4.addConstraint(Sketcher.Constraint("Parallel", 5, 8))
sketch4.addConstraint(Sketcher.Constraint("Parallel", 6, 9))
sketch4.addConstraint(Sketcher.Constraint("Parallel", 8, 11))
sketch4.addConstraint(Sketcher.Constraint("Horizontal", 2, 2, 5, 2))
sketch4.addConstraint(Sketcher.Constraint("Horizontal", 5, 2, 8, 2))
sketch4.addConstraint(Sketcher.Constraint("Horizontal", 8, 2, 11, 2))
sketch4.addConstraint(Sketcher.Constraint("Vertical", 1, 2, 3, 2))
sketch4.addConstraint(Sketcher.Constraint("Vertical", 0, 2, 4, 2))
sketch4.addConstraint(Sketcher.Constraint("Vertical", 7, 2, 9, 2))
sketch4.addConstraint(Sketcher.Constraint("Angle", 0, Q("120.000002 deg")))
sketch4.addConstraint(Sketcher.Constraint("DistanceY", 2, 2, -1, 1, 1.0))
sketch4.addConstraint(Sketcher.Constraint("DistanceX", 7, 2, 7, 1, 4.59882))
sketch4.addConstraint(Sketcher.Constraint("Distance", 6, 4.598821))
sketch4.addConstraint(Sketcher.Constraint("DistanceX", 1, 2, 1, 1, 4.603116))
sketch4.addConstraint(Sketcher.Constraint("DistanceX", 0, 2, -1, 1, 24.198442))
sketch4.addConstraint(Sketcher.Constraint("DistanceX", 6, 2, -1, 1, 92.70059))
sketch4.addConstraint(Sketcher.Constraint("DistanceX", 2, 2, 1, 2, 2.301558))
pocket1 = doc.addObject("PartDesign::Pocket", "Pocket")
body.addObject(pocket1)
pocket1.Profile = sketch4
pocket1.Length = 2.5

# Sketch on XY plane
sketch5 = doc.addObject("Sketcher::SketchObject", "Sketch004")
body.addObject(sketch5)
sketch5.AttachmentSupport = (doc.XY_Plane, [""])
sketch5.MapMode = "FlatFace"
sketch5.AttachmentOffset = App.Placement(App.Vector(0, 0, -10), App.Rotation())
sketch5.addGeometry(Part.LineSegment(App.Vector(-75.396524, 25, 0), App.Vector(-75.396524, 17, 0)), False)
sketch5.addGeometry(Part.LineSegment(App.Vector(-75.396524, 17, 0), App.Vector(-107.396524, 17, 0)), False)
sketch5.addGeometry(Part.LineSegment(App.Vector(-107.396524, 17, 0), App.Vector(-107.396524, 25, 0)), False)
sketch5.addGeometry(Part.LineSegment(App.Vector(-107.396524, 25, 0), App.Vector(-75.396524, 25, 0)), False)
sketch5.addGeometry(Part.LineSegment(App.Vector(-75.396524, 33, 0), App.Vector(-75.396524, 25, 0)), False)
sketch5.addGeometry(Part.LineSegment(App.Vector(-75.396524, 25, 0), App.Vector(-107.396524, 25, 0)), False)
sketch5.addGeometry(Part.LineSegment(App.Vector(-107.396524, 25, 0), App.Vector(-107.396524, 33, 0)), False)
sketch5.addGeometry(Part.LineSegment(App.Vector(-107.396524, 33, 0), App.Vector(-75.396524, 33, 0)), False)
sketch5.addGeometry(Part.ArcOfCircle(Part.Circle(App.Vector(-60.666891, 25, 0), App.Vector(0, 0, 1), 8), math.radians(0), math.radians(180)), False)
sketch5.addGeometry(Part.LineSegment(App.Vector(-52.666891, 25, 0), App.Vector(-68.666891, 25, 0)), False)
sketch5.addGeometry(Part.LineSegment(App.Vector(-68.666891, 25, 0), App.Vector(-52.666891, 25, 0)), False)
sketch5.addGeometry(Part.ArcOfCircle(Part.Circle(App.Vector(-60.666891, 25, 0), App.Vector(0, 0, 1), 8), math.radians(180), math.radians(360)), False)
sketch5.addGeometry(Part.ArcOfCircle(Part.Circle(App.Vector(-31.301131, 25, 0), App.Vector(0, 0, 1), 11), math.radians(180), math.radians(360)), False)
sketch5.addGeometry(Part.LineSegment(App.Vector(-42.301131, 25, 0), App.Vector(-20.301131, 25, 0)), False)
sketch5.addGeometry(Part.LineSegment(App.Vector(-20.301131, 25, 0), App.Vector(-42.301131, 25, 0)), False)
sketch5.addGeometry(Part.ArcOfCircle(Part.Circle(App.Vector(-31.301131, 25, 0), App.Vector(0, 0, 1), 11), math.radians(0), math.radians(180)), False)
sketch5.addConstraint(Sketcher.Constraint("Coincident", 0, 2, 1, 1))
sketch5.addConstraint(Sketcher.Constraint("Coincident", 1, 2, 2, 1))
sketch5.addConstraint(Sketcher.Constraint("Coincident", 2, 2, 3, 1))
sketch5.addConstraint(Sketcher.Constraint("Coincident", 3, 2, 0, 1))
sketch5.addConstraint(Sketcher.Constraint("Coincident", 4, 2, 5, 1))
sketch5.addConstraint(Sketcher.Constraint("Coincident", 5, 2, 6, 1))
sketch5.addConstraint(Sketcher.Constraint("Coincident", 6, 2, 7, 1))
sketch5.addConstraint(Sketcher.Constraint("Coincident", 7, 2, 4, 1))
sketch5.addConstraint(Sketcher.Constraint("Coincident", 8, 1, 9, 1))
sketch5.addConstraint(Sketcher.Constraint("Coincident", 9, 2, 8, 2))
sketch5.addConstraint(Sketcher.Constraint("Coincident", 10, 1, 11, 1))
sketch5.addConstraint(Sketcher.Constraint("Coincident", 11, 2, 10, 2))
sketch5.addConstraint(Sketcher.Constraint("Coincident", 12, 1, 13, 1))
sketch5.addConstraint(Sketcher.Constraint("Coincident", 13, 2, 12, 2))
sketch5.addConstraint(Sketcher.Constraint("Coincident", 14, 1, 15, 1))
sketch5.addConstraint(Sketcher.Constraint("Coincident", 15, 2, 14, 2))
sketch5.addConstraint(Sketcher.Constraint("Vertical", 0))
sketch5.addConstraint(Sketcher.Constraint("Horizontal", 1))
sketch5.addConstraint(Sketcher.Constraint("Vertical", 2))
sketch5.addConstraint(Sketcher.Constraint("Horizontal", 3))
sketch5.addConstraint(Sketcher.Constraint("Vertical", 4))
sketch5.addConstraint(Sketcher.Constraint("Horizontal", 5))
sketch5.addConstraint(Sketcher.Constraint("Vertical", 6))
sketch5.addConstraint(Sketcher.Constraint("Horizontal", 7))
sketch5.addConstraint(Sketcher.Constraint("Horizontal", 9))
sketch5.addConstraint(Sketcher.Constraint("Horizontal", 10))
sketch5.addConstraint(Sketcher.Constraint("Horizontal", 13))
sketch5.addConstraint(Sketcher.Constraint("Horizontal", 14))
sketch5.addConstraint(Sketcher.Constraint("Coincident", 11, 3, 8, 3))
sketch5.addConstraint(Sketcher.Constraint("Coincident", 15, 3, 12, 3))
sketch5.addConstraint(Sketcher.Constraint("Coincident", 4, 2, 3, 2))
sketch5.addConstraint(Sketcher.Constraint("Coincident", 10, 1, 9, 2))
sketch5.addConstraint(Sketcher.Constraint("Coincident", 14, 1, 13, 2))
sketch5.addConstraint(Sketcher.Constraint("Horizontal", 11, 3, 12, 3))
sketch5.addConstraint(Sketcher.Constraint("Horizontal", 15, 3, 2, 2))
sketch5.addConstraint(Sketcher.Constraint("Horizontal", 5, 2, 8, 1))
sketch5.addConstraint(Sketcher.Constraint("Horizontal", 11, 2, 12, 1))
sketch5.addConstraint(Sketcher.Constraint("Vertical", 1, 2, 5, 2))
sketch5.addConstraint(Sketcher.Constraint("Equal", 2, 4))
sketch5.addConstraint(Sketcher.Constraint("Radius", 8, 8.0))
sketch5.addConstraint(Sketcher.Constraint("Radius", 12, 11.0))
sketch5.addConstraint(Sketcher.Constraint("DistanceX", 1, 2, 1, 1, 32.0))
sketch5.addConstraint(Sketcher.Constraint("DistanceY", 0, 2, 0, 1, 8.0))
sketch5.addConstraint(Sketcher.Constraint("DistanceY", -1, 1, 8, 3, 25.0))
sketch5.addConstraint(Sketcher.Constraint("DistanceX", 8, 3, -1, 1, 60.666891))
sketch5.addConstraint(Sketcher.Constraint("DistanceX", 12, 3, -1, 1, 31.301131))
sketch5.addConstraint(Sketcher.Constraint("DistanceX", 0, 2, -1, 1, 75.396524))
pocket2 = doc.addObject("PartDesign::Pocket", "Pocket001")
body.addObject(pocket2)
pocket2.Profile = sketch5
pocket2.Length = 10
pocket2.Reversed = True

doc.recompute()
